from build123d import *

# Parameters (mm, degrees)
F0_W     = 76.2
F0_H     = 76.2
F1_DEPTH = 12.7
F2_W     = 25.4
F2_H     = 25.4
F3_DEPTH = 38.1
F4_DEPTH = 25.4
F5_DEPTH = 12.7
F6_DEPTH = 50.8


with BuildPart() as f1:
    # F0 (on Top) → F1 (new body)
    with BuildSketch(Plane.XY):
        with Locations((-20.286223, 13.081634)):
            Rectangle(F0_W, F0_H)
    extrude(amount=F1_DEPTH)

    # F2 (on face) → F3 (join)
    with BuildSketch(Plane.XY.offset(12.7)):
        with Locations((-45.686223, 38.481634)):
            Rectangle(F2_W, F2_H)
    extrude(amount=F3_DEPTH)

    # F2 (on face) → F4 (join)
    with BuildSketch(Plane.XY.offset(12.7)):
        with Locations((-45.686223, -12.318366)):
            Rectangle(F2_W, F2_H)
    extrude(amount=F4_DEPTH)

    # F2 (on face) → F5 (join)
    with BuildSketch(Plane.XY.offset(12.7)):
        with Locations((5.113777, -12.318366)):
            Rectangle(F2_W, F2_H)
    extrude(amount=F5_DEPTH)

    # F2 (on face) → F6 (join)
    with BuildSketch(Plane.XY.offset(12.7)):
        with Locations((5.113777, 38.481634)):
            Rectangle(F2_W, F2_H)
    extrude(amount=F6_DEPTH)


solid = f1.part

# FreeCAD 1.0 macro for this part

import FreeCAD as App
import Part
import Sketcher
from FreeCAD import Vector
Q = App.Units.Quantity


def add_polygon(sketch, points):
    """Adds a closed chain of lines whose ends are joined by coincident constraints."""
    first, n = sketch.GeometryCount, len(points)
    for a, b in zip(points, points[1:] + points[:1]):
        sketch.addGeometry(Part.LineSegment(App.Vector(*a, 0), App.Vector(*b, 0)), False)
    for i in range(n):
        sketch.addConstraint(Sketcher.Constraint("Coincident", first + i, 2, first + (i + 1) % n, 1))

doc = App.newDocument("Part")
body = doc.addObject("PartDesign::Body", "Body")

sketch1 = body.newObject("Sketcher::SketchObject", "Sketch")
sketch1.AttachmentSupport = (doc.getObject("XY_Plane"), [""])
sketch1.MapMode = "FlatFace"
add_polygon(sketch1, [(-58, 51), (-58, -25), (18, -25), (18, 51)])
sketch1.addConstraint(Sketcher.Constraint("Vertical", 0))
sketch1.addConstraint(Sketcher.Constraint("Horizontal", 1))
sketch1.addConstraint(Sketcher.Constraint("Vertical", 2))
sketch1.addConstraint(Sketcher.Constraint("Horizontal", 3))
sketch1.addConstraint(Sketcher.Constraint("Equal", 3, 0))
sketch1.addConstraint(Sketcher.Constraint("DistanceX", 1, 1, 1, 2, Q("3 in")))
sketch1.addConstraint(Sketcher.Constraint("DistanceX", 0, 2, -1, 1, Q("58.386223 mm")))
sketch1.addConstraint(Sketcher.Constraint("DistanceY", 0, 2, -1, 1, Q("25.018366 mm")))
pad1 = body.newObject("PartDesign::Pad", "Pad")
pad1.Profile = sketch1
pad1.Length = Q("0.5 in")

sketch2 = body.newObject("Sketcher::SketchObject", "Sketch001")
sketch2.AttachmentSupport = (doc.getObject("XY_Plane"), [""])
sketch2.MapMode = "FlatFace"
sketch2.AttachmentOffset = App.Placement(Vector(0, 0, 0.5 * 25.4), App.Rotation())
add_polygon(sketch2, [(-58, 51), (-58, 26), (-33, 26), (-33, 51)])
sketch2.addConstraint(Sketcher.Constraint("Vertical", 0))
sketch2.addConstraint(Sketcher.Constraint("Horizontal", 1))
sketch2.addConstraint(Sketcher.Constraint("Vertical", 2))
sketch2.addConstraint(Sketcher.Constraint("Horizontal", 3))
sketch2.addConstraint(Sketcher.Constraint("Equal", 3, 0))
sketch2.addConstraint(Sketcher.Constraint("DistanceX", 1, 1, 1, 2, Q("1 in")))
sketch2.addConstraint(Sketcher.Constraint("DistanceX", 0, 2, -1, 1, Q("58.386223 mm")))
sketch2.addConstraint(Sketcher.Constraint("DistanceY", -1, 1, 0, 2, Q("25.781634 mm")))
pad2 = body.newObject("PartDesign::Pad", "Pad001")
pad2.Profile = sketch2
pad2.Length = Q("1.5 in")

sketch3 = body.newObject("Sketcher::SketchObject", "Sketch002")
sketch3.AttachmentSupport = (doc.getObject("XY_Plane"), [""])
sketch3.MapMode = "FlatFace"
sketch3.AttachmentOffset = App.Placement(Vector(0, 0, 0.5 * 25.4), App.Rotation())
add_polygon(sketch3, [(-58, 0), (-58, -25), (-33, -25), (-33, 0)])
sketch3.addConstraint(Sketcher.Constraint("Vertical", 0))
sketch3.addConstraint(Sketcher.Constraint("Horizontal", 1))
sketch3.addConstraint(Sketcher.Constraint("Vertical", 2))
sketch3.addConstraint(Sketcher.Constraint("Horizontal", 3))
sketch3.addConstraint(Sketcher.Constraint("Equal", 3, 0))
sketch3.addConstraint(Sketcher.Constraint("DistanceX", 1, 1, 1, 2, Q("1 in")))
sketch3.addConstraint(Sketcher.Constraint("DistanceX", 0, 2, -1, 1, Q("58.386223 mm")))
sketch3.addConstraint(Sketcher.Constraint("DistanceY", 0, 2, -1, 1, Q("25.018366 mm")))
pad3 = body.newObject("PartDesign::Pad", "Pad002")
pad3.Profile = sketch3
pad3.Length = Q("1 in")

sketch4 = body.newObject("Sketcher::SketchObject", "Sketch003")
sketch4.AttachmentSupport = (doc.getObject("XY_Plane"), [""])
sketch4.MapMode = "FlatFace"
sketch4.AttachmentOffset = App.Placement(Vector(0, 0, 0.5 * 25.4), App.Rotation())
add_polygon(sketch4, [(-8, 0), (-8, -25), (18, -25), (18, 0)])
sketch4.addConstraint(Sketcher.Constraint("Vertical", 0))
sketch4.addConstraint(Sketcher.Constraint("Horizontal", 1))
sketch4.addConstraint(Sketcher.Constraint("Vertical", 2))
sketch4.addConstraint(Sketcher.Constraint("Horizontal", 3))
sketch4.addConstraint(Sketcher.Constraint("Equal", 3, 0))
sketch4.addConstraint(Sketcher.Constraint("DistanceX", 1, 1, 1, 2, Q("1 in")))
sketch4.addConstraint(Sketcher.Constraint("DistanceX", 0, 2, -1, 1, Q("7.586223 mm")))
sketch4.addConstraint(Sketcher.Constraint("DistanceY", 0, 2, -1, 1, Q("25.018366 mm")))
pad4 = body.newObject("PartDesign::Pad", "Pad003")
pad4.Profile = sketch4
pad4.Length = Q("0.5 in")

sketch5 = body.newObject("Sketcher::SketchObject", "Sketch004")
sketch5.AttachmentSupport = (doc.getObject("XY_Plane"), [""])
sketch5.MapMode = "FlatFace"
sketch5.AttachmentOffset = App.Placement(Vector(0, 0, 0.5 * 25.4), App.Rotation())
add_polygon(sketch5, [(-8, 51), (-8, 26), (18, 26), (18, 51)])
sketch5.addConstraint(Sketcher.Constraint("Vertical", 0))
sketch5.addConstraint(Sketcher.Constraint("Horizontal", 1))
sketch5.addConstraint(Sketcher.Constraint("Vertical", 2))
sketch5.addConstraint(Sketcher.Constraint("Horizontal", 3))
sketch5.addConstraint(Sketcher.Constraint("Equal", 3, 0))
sketch5.addConstraint(Sketcher.Constraint("DistanceX", 1, 1, 1, 2, Q("1 in")))
sketch5.addConstraint(Sketcher.Constraint("DistanceX", 0, 2, -1, 1, Q("7.586223 mm")))
sketch5.addConstraint(Sketcher.Constraint("DistanceY", -1, 1, 0, 2, Q("25.781634 mm")))
pad5 = body.newObject("PartDesign::Pad", "Pad004")
pad5.Profile = sketch5
pad5.Length = Q("2 in")

doc.recompute()
